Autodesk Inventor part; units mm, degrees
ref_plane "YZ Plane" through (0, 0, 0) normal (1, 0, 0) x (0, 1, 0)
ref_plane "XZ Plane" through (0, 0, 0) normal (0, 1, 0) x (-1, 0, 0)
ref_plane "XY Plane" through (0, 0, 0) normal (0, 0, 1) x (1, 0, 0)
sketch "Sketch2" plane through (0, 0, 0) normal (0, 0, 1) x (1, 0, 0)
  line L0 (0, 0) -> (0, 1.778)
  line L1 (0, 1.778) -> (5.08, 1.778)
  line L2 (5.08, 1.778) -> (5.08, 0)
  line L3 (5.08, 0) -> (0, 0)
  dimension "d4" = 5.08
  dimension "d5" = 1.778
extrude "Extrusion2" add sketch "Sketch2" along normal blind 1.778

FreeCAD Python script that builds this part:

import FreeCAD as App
import Part
import Sketcher
from FreeCAD import Vector
Q = App.Units.Quantity


def add_polygon(sketch, points):
    """Adds a closed chain of lines whose ends are joined by coincident constraints."""
    first, n = sketch.GeometryCount, len(points)
    for a, b in zip(points, points[1:] + points[:1]):
        sketch.addGeometry(Part.LineSegment(App.Vector(*a, 0), App.Vector(*b, 0)), False)
    for i in range(n):
        sketch.addConstraint(Sketcher.Constraint("Coincident", first + i, 2, first + (i + 1) % n, 1))

doc = App.newDocument("Part")
body = doc.addObject("PartDesign::Body", "Body")

sketch1 = body.newObject("Sketcher::SketchObject", "Sketch")
sketch1.AttachmentSupport = (doc.getObject("XY_Plane"), [""])
sketch1.MapMode = "FlatFace"
add_polygon(sketch1, [(0, 1.8), (0, 0), (5.1, 0), (5.1, 1.8)])
sketch1.addConstraint([
    Sketcher.Constraint("Vertical", 0),
    Sketcher.Constraint("Horizontal", 1),
    Sketcher.Constraint("Vertical", 2),
    Sketcher.Constraint("Horizontal", 3),
    Sketcher.Constraint("Coincident", 0, 2, -1, 1),
    Sketcher.Constraint("DistanceX", 1, 1, 1, 2, Q("0.2 in")),
    Sketcher.Constraint("DistanceY", 0, 2, 0, 1, Q("0.07 in")),
])
pad1 = body.newObject("PartDesign::Pad", "Pad")
pad1.Profile = sketch1
pad1.Length = Q("0.07 in")

doc.recompute()
